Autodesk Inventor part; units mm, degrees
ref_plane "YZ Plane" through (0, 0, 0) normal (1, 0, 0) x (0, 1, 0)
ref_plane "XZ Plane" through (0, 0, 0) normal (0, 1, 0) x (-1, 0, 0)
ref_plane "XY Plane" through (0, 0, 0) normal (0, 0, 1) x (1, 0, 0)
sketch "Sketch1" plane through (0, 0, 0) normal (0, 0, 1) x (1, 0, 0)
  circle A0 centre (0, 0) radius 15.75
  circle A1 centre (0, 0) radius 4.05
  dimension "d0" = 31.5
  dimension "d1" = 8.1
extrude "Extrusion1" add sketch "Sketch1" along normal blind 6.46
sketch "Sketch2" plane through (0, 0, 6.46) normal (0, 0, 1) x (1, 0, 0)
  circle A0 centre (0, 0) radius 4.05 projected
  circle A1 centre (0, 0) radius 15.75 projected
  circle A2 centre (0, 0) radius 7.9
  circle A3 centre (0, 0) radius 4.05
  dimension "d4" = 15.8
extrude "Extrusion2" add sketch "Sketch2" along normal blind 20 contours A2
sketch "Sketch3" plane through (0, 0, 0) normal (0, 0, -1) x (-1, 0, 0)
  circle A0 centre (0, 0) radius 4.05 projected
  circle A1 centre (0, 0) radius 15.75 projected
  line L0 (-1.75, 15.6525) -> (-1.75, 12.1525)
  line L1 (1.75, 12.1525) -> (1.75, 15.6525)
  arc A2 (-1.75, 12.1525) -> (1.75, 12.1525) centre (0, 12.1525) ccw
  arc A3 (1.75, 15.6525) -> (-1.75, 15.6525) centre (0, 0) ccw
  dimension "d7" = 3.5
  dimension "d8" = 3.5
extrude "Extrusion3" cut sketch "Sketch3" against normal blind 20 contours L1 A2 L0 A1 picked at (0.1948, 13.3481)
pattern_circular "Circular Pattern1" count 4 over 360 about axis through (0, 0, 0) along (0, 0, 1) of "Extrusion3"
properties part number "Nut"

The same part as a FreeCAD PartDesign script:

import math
import FreeCAD as App
import Part
import Sketcher
Q = App.Units.Quantity

doc = App.newDocument("Part")
params = doc.addObject("Spreadsheet::Sheet", "Params")
for row, (alias, value) in enumerate([
    ("sketch1_diameter", "31.5 mm"),
    ("sketch1_diameter2", "8.1 mm"),
    ("pad1_length", "6.46 mm"),
    ("sketch2_diameter", "15.8 mm"),
    ("sketch2_diameter2", "8.1 mm"),
    ("pad2_length", "20 mm"),
    ("sketch3_radius", "1.75 mm"),
    ("sketch3_height", "3.5 mm"),
    ("sketch3_radius2", "15.75 mm"),
    ("pocket1_length", "20 mm"),
], start=1):
    params.set(f"A{row}", alias)
    params.set(f"B{row}", "=" + value)
    params.setAlias(f"B{row}", alias)

body = doc.addObject("PartDesign::Body", "Body")

sketch1 = body.newObject("Sketcher::SketchObject", "Sketch")
sketch1.AttachmentSupport = (doc.getObject("XY_Plane"), [""])
sketch1.MapMode = "FlatFace"
sketch1.addGeometry(Part.Circle(App.Vector(0, 0, 0), App.Vector(0, 0, 1), 15.8), False)
sketch1.addGeometry(Part.Circle(App.Vector(0, 0, 0), App.Vector(0, 0, 1), 4), False)
sketch1.addConstraint(Sketcher.Constraint("Coincident", 0, 3, -1, 1))
sketch1.addConstraint(Sketcher.Constraint("Coincident", 1, 3, -1, 1))
sketch1.addConstraint(Sketcher.Constraint("Diameter", 0, Q("31.5 mm")))
sketch1.addConstraint(Sketcher.Constraint("Diameter", 1, Q("8.1 mm")))
sketch1.setExpression("Constraints[2]", "Params.sketch1_diameter")
sketch1.setExpression("Constraints[3]", "Params.sketch1_diameter2")
pad1 = body.newObject("PartDesign::Pad", "Pad")
pad1.Profile = sketch1
pad1.setExpression("Length", "Params.pad1_length")

sketch2 = body.newObject("Sketcher::SketchObject", "Sketch001")
sketch2.AttachmentSupport = (doc.getObject("XY_Plane"), [""])
sketch2.MapMode = "FlatFace"
sketch2.AttachmentOffset = App.Placement(App.Vector(0, 0, 6.46), App.Rotation())
sketch2.addGeometry(Part.Circle(App.Vector(0, 0, 0), App.Vector(0, 0, 1), 7.9), False)
sketch2.addGeometry(Part.Circle(App.Vector(0, 0, 0), App.Vector(0, 0, 1), 4), False)
sketch2.addConstraint(Sketcher.Constraint("Coincident", 0, 3, -1, 1))
sketch2.addConstraint(Sketcher.Constraint("Coincident", 1, 3, -1, 1))
sketch2.addConstraint(Sketcher.Constraint("Diameter", 0, Q("15.8 mm")))
sketch2.addConstraint(Sketcher.Constraint("Diameter", 1, Q("8.1 mm")))
sketch2.setExpression("Constraints[2]", "Params.sketch2_diameter")
sketch2.setExpression("Constraints[3]", "Params.sketch2_diameter2")
pad2 = body.newObject("PartDesign::Pad", "Pad001")
pad2.Profile = sketch2
pad2.setExpression("Length", "Params.pad2_length")

sketch3 = body.newObject("Sketcher::SketchObject", "Sketch002")
sketch3.AttachmentSupport = (doc.getObject("XY_Plane"), [""])
sketch3.MapMode = "FlatFace"
sketch3.addGeometry(Part.LineSegment(App.Vector(-1.8, 12.2, 0), App.Vector(-1.8, 15.7, 0)), False)
sketch3.addGeometry(Part.ArcOfCircle(Part.Circle(App.Vector(0, 0, 0), App.Vector(0, 0, 1), 15.8), math.radians(83.62), math.radians(96.38)), False)
sketch3.addGeometry(Part.LineSegment(App.Vector(1.8, 15.7, 0), App.Vector(1.8, 12.2, 0)), False)
sketch3.addGeometry(Part.ArcOfCircle(Part.Circle(App.Vector(0, 12.2, 0), App.Vector(0, 0, 1), 1.8), math.radians(180), math.radians(360)), False)
sketch3.addConstraint(Sketcher.Constraint("Coincident", 0, 2, 1, 2))
sketch3.addConstraint(Sketcher.Constraint("Coincident", 1, 1, 2, 1))
sketch3.addConstraint(Sketcher.Constraint("Tangent", 2, 2, 3, 2))
sketch3.addConstraint(Sketcher.Constraint("Tangent", 3, 1, 0, 1))
sketch3.addConstraint(Sketcher.Constraint("Vertical", 0))
sketch3.addConstraint(Sketcher.Constraint("Vertical", 2))
sketch3.addConstraint(Sketcher.Constraint("Coincident", 1, 3, -1, 1))
sketch3.addConstraint(Sketcher.Constraint("PointOnObject", 3, 3, -2))
sketch3.addConstraint(Sketcher.Constraint("Radius", 3, Q("1.75 mm")))
sketch3.addConstraint(Sketcher.Constraint("DistanceY", 0, 1, 0, 2, Q("3.5 mm")))
sketch3.addConstraint(Sketcher.Constraint("Radius", 1, Q("15.75 mm")))
sketch3.setExpression("Constraints[8]", "Params.sketch3_radius")
sketch3.setExpression("Constraints[9]", "Params.sketch3_height")
sketch3.setExpression("Constraints[10]", "Params.sketch3_radius2")
pocket1 = body.newObject("PartDesign::Pocket", "Pocket")
pocket1.Profile = sketch3
pocket1.setExpression("Length", "Params.pocket1_length")
pocket1.Reversed = True
doc.recompute()

polarpattern = body.newObject("PartDesign::PolarPattern", "PolarPattern")
polarpattern.Originals = [pocket1]
polarpattern.Axis = (doc.getObject("Z_Axis"), [""])
polarpattern.Angle = 360
polarpattern.Occurrences = 4
body.Tip = polarpattern

doc.recompute()
